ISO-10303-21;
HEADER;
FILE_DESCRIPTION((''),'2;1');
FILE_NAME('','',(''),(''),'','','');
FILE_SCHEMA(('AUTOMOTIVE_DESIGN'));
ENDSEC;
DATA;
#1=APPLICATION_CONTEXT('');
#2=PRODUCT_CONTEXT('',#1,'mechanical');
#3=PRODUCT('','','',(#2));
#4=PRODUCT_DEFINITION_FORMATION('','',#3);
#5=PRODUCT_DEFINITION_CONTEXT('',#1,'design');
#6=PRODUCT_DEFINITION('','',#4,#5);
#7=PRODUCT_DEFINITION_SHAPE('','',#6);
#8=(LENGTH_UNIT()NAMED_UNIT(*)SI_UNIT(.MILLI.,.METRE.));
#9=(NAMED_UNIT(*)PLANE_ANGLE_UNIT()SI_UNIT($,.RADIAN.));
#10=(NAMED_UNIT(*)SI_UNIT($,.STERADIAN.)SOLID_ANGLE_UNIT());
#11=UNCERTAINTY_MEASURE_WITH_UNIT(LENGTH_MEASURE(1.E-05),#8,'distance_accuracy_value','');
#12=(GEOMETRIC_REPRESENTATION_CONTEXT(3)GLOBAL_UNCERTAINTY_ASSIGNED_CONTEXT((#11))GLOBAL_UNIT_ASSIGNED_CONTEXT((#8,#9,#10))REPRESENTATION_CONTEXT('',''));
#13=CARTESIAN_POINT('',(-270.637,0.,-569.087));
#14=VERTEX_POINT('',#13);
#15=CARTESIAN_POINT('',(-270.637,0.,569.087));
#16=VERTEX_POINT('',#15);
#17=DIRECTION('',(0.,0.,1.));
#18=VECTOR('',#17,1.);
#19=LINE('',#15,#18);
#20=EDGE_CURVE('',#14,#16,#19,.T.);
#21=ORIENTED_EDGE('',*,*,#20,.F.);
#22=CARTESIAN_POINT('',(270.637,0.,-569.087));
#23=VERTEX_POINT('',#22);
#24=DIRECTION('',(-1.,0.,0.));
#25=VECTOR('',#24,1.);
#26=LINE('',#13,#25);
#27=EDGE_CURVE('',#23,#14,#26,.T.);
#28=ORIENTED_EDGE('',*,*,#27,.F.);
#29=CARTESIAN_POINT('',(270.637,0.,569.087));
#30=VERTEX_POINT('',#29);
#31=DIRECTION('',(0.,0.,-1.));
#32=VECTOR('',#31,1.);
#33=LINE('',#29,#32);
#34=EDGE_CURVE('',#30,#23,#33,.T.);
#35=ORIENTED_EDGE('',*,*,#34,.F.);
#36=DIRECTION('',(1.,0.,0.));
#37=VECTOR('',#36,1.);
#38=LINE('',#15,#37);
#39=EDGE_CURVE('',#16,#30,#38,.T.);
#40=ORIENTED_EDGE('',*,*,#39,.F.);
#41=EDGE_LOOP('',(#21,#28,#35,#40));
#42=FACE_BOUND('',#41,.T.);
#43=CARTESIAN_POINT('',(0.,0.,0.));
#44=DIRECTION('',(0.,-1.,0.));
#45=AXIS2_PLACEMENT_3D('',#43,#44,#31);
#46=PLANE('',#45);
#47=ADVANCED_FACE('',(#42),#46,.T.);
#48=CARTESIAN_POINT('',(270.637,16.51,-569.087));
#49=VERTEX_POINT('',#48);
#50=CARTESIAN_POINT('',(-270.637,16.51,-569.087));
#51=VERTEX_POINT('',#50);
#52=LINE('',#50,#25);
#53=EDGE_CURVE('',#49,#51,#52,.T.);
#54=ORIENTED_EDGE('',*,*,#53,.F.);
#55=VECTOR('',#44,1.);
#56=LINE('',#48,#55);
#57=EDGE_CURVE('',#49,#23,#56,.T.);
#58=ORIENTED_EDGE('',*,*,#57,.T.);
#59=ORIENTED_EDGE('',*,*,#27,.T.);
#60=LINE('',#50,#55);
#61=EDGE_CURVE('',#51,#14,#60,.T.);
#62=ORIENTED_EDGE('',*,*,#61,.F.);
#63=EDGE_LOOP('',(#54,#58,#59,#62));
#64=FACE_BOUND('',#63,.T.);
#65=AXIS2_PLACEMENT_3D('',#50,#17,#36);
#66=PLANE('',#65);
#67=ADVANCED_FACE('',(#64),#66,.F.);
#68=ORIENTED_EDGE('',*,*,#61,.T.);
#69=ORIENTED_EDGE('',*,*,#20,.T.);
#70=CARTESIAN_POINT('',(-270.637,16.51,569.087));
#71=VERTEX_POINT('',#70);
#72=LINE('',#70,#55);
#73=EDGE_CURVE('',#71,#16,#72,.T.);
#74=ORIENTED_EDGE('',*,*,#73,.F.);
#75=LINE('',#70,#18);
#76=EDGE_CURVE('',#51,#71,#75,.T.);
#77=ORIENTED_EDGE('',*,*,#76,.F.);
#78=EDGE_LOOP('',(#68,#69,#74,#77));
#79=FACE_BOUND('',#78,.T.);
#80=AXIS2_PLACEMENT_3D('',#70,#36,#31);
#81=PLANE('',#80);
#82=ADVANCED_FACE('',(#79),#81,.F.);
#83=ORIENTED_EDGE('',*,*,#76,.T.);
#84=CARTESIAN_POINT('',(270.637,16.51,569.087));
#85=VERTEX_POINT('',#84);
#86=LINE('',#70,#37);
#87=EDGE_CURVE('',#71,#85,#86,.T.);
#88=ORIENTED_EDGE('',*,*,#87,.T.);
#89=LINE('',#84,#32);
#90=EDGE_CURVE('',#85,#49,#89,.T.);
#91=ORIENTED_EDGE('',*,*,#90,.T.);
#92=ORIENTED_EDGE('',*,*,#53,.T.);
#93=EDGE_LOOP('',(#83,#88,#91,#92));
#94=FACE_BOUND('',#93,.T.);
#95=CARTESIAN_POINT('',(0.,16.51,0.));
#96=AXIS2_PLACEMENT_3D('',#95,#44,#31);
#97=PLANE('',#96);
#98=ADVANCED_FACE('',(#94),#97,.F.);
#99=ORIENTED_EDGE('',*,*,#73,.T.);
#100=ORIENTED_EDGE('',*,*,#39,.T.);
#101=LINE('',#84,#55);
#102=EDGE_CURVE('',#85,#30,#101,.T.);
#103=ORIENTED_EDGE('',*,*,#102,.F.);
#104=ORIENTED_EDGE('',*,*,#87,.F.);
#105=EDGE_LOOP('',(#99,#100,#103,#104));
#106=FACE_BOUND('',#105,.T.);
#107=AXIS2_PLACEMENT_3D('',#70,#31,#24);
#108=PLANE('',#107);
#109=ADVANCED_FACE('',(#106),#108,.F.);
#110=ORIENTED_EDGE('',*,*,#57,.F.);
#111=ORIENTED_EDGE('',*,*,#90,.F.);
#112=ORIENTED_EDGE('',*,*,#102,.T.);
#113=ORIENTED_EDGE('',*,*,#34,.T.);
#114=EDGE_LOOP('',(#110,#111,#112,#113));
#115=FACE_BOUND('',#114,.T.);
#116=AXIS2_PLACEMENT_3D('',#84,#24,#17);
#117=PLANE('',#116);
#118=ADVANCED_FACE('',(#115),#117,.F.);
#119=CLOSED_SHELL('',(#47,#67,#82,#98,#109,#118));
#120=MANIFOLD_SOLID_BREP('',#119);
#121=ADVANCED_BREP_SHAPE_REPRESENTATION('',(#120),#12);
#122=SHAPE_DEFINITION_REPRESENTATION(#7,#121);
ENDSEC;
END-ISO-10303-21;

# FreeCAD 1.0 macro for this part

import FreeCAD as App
import Part
import Sketcher
Q = App.Units.Quantity


def add_polygon(sketch, points):
    """Adds a closed chain of lines whose ends are joined by coincident constraints."""
    first, n = sketch.GeometryCount, len(points)
    for a, b in zip(points, points[1:] + points[:1]):
        sketch.addGeometry(Part.LineSegment(App.Vector(*a, 0), App.Vector(*b, 0)), False)
    for i in range(n):
        sketch.addConstraint(Sketcher.Constraint("Coincident", first + i, 2, first + (i + 1) % n, 1))

doc = App.newDocument("Part")
params = doc.addObject("Spreadsheet::Sheet", "Params")
for row, (alias, value) in enumerate([
    ("sketch1_width", "21.31 in"),
    ("sketch1_height", "44.81 in"),
    ("pad1_length", "0.65 in"),
], start=1):
    params.set(f"A{row}", alias)
    params.set(f"B{row}", "=" + value)
    params.setAlias(f"B{row}", alias)

body = doc.addObject("PartDesign::Body", "Body")

# Sketch on XZ plane
sketch1 = body.newObject("Sketcher::SketchObject", "Sketch")
sketch1.AttachmentSupport = (doc.getObject("XZ_Plane"), [""])
sketch1.MapMode = "FlatFace"
add_polygon(sketch1, [(-271, -569), (-271, 569), (271, 569), (271, -569)])  # lines 0-3
sketch1.addConstraint(Sketcher.Constraint("Vertical", 0))
sketch1.addConstraint(Sketcher.Constraint("Horizontal", 1))
sketch1.addConstraint(Sketcher.Constraint("Vertical", 2))
sketch1.addConstraint(Sketcher.Constraint("Horizontal", 3))
sketch1.addConstraint(Sketcher.Constraint("Symmetric", 0, 2, 2, 2, -1, 1))
sketch1.addConstraint(Sketcher.Constraint("DistanceX", 1, 1, 1, 2, Q("21.31 in")))
sketch1.addConstraint(Sketcher.Constraint("DistanceY", 0, 1, 0, 2, Q("44.81 in")))
sketch1.setExpression("Constraints[9]", "Params.sketch1_width")
sketch1.setExpression("Constraints[10]", "Params.sketch1_height")
pad1 = body.newObject("PartDesign::Pad", "Pad")
pad1.Profile = sketch1
pad1.setExpression("Length", "Params.pad1_length")
pad1.Reversed = True

doc.recompute()
